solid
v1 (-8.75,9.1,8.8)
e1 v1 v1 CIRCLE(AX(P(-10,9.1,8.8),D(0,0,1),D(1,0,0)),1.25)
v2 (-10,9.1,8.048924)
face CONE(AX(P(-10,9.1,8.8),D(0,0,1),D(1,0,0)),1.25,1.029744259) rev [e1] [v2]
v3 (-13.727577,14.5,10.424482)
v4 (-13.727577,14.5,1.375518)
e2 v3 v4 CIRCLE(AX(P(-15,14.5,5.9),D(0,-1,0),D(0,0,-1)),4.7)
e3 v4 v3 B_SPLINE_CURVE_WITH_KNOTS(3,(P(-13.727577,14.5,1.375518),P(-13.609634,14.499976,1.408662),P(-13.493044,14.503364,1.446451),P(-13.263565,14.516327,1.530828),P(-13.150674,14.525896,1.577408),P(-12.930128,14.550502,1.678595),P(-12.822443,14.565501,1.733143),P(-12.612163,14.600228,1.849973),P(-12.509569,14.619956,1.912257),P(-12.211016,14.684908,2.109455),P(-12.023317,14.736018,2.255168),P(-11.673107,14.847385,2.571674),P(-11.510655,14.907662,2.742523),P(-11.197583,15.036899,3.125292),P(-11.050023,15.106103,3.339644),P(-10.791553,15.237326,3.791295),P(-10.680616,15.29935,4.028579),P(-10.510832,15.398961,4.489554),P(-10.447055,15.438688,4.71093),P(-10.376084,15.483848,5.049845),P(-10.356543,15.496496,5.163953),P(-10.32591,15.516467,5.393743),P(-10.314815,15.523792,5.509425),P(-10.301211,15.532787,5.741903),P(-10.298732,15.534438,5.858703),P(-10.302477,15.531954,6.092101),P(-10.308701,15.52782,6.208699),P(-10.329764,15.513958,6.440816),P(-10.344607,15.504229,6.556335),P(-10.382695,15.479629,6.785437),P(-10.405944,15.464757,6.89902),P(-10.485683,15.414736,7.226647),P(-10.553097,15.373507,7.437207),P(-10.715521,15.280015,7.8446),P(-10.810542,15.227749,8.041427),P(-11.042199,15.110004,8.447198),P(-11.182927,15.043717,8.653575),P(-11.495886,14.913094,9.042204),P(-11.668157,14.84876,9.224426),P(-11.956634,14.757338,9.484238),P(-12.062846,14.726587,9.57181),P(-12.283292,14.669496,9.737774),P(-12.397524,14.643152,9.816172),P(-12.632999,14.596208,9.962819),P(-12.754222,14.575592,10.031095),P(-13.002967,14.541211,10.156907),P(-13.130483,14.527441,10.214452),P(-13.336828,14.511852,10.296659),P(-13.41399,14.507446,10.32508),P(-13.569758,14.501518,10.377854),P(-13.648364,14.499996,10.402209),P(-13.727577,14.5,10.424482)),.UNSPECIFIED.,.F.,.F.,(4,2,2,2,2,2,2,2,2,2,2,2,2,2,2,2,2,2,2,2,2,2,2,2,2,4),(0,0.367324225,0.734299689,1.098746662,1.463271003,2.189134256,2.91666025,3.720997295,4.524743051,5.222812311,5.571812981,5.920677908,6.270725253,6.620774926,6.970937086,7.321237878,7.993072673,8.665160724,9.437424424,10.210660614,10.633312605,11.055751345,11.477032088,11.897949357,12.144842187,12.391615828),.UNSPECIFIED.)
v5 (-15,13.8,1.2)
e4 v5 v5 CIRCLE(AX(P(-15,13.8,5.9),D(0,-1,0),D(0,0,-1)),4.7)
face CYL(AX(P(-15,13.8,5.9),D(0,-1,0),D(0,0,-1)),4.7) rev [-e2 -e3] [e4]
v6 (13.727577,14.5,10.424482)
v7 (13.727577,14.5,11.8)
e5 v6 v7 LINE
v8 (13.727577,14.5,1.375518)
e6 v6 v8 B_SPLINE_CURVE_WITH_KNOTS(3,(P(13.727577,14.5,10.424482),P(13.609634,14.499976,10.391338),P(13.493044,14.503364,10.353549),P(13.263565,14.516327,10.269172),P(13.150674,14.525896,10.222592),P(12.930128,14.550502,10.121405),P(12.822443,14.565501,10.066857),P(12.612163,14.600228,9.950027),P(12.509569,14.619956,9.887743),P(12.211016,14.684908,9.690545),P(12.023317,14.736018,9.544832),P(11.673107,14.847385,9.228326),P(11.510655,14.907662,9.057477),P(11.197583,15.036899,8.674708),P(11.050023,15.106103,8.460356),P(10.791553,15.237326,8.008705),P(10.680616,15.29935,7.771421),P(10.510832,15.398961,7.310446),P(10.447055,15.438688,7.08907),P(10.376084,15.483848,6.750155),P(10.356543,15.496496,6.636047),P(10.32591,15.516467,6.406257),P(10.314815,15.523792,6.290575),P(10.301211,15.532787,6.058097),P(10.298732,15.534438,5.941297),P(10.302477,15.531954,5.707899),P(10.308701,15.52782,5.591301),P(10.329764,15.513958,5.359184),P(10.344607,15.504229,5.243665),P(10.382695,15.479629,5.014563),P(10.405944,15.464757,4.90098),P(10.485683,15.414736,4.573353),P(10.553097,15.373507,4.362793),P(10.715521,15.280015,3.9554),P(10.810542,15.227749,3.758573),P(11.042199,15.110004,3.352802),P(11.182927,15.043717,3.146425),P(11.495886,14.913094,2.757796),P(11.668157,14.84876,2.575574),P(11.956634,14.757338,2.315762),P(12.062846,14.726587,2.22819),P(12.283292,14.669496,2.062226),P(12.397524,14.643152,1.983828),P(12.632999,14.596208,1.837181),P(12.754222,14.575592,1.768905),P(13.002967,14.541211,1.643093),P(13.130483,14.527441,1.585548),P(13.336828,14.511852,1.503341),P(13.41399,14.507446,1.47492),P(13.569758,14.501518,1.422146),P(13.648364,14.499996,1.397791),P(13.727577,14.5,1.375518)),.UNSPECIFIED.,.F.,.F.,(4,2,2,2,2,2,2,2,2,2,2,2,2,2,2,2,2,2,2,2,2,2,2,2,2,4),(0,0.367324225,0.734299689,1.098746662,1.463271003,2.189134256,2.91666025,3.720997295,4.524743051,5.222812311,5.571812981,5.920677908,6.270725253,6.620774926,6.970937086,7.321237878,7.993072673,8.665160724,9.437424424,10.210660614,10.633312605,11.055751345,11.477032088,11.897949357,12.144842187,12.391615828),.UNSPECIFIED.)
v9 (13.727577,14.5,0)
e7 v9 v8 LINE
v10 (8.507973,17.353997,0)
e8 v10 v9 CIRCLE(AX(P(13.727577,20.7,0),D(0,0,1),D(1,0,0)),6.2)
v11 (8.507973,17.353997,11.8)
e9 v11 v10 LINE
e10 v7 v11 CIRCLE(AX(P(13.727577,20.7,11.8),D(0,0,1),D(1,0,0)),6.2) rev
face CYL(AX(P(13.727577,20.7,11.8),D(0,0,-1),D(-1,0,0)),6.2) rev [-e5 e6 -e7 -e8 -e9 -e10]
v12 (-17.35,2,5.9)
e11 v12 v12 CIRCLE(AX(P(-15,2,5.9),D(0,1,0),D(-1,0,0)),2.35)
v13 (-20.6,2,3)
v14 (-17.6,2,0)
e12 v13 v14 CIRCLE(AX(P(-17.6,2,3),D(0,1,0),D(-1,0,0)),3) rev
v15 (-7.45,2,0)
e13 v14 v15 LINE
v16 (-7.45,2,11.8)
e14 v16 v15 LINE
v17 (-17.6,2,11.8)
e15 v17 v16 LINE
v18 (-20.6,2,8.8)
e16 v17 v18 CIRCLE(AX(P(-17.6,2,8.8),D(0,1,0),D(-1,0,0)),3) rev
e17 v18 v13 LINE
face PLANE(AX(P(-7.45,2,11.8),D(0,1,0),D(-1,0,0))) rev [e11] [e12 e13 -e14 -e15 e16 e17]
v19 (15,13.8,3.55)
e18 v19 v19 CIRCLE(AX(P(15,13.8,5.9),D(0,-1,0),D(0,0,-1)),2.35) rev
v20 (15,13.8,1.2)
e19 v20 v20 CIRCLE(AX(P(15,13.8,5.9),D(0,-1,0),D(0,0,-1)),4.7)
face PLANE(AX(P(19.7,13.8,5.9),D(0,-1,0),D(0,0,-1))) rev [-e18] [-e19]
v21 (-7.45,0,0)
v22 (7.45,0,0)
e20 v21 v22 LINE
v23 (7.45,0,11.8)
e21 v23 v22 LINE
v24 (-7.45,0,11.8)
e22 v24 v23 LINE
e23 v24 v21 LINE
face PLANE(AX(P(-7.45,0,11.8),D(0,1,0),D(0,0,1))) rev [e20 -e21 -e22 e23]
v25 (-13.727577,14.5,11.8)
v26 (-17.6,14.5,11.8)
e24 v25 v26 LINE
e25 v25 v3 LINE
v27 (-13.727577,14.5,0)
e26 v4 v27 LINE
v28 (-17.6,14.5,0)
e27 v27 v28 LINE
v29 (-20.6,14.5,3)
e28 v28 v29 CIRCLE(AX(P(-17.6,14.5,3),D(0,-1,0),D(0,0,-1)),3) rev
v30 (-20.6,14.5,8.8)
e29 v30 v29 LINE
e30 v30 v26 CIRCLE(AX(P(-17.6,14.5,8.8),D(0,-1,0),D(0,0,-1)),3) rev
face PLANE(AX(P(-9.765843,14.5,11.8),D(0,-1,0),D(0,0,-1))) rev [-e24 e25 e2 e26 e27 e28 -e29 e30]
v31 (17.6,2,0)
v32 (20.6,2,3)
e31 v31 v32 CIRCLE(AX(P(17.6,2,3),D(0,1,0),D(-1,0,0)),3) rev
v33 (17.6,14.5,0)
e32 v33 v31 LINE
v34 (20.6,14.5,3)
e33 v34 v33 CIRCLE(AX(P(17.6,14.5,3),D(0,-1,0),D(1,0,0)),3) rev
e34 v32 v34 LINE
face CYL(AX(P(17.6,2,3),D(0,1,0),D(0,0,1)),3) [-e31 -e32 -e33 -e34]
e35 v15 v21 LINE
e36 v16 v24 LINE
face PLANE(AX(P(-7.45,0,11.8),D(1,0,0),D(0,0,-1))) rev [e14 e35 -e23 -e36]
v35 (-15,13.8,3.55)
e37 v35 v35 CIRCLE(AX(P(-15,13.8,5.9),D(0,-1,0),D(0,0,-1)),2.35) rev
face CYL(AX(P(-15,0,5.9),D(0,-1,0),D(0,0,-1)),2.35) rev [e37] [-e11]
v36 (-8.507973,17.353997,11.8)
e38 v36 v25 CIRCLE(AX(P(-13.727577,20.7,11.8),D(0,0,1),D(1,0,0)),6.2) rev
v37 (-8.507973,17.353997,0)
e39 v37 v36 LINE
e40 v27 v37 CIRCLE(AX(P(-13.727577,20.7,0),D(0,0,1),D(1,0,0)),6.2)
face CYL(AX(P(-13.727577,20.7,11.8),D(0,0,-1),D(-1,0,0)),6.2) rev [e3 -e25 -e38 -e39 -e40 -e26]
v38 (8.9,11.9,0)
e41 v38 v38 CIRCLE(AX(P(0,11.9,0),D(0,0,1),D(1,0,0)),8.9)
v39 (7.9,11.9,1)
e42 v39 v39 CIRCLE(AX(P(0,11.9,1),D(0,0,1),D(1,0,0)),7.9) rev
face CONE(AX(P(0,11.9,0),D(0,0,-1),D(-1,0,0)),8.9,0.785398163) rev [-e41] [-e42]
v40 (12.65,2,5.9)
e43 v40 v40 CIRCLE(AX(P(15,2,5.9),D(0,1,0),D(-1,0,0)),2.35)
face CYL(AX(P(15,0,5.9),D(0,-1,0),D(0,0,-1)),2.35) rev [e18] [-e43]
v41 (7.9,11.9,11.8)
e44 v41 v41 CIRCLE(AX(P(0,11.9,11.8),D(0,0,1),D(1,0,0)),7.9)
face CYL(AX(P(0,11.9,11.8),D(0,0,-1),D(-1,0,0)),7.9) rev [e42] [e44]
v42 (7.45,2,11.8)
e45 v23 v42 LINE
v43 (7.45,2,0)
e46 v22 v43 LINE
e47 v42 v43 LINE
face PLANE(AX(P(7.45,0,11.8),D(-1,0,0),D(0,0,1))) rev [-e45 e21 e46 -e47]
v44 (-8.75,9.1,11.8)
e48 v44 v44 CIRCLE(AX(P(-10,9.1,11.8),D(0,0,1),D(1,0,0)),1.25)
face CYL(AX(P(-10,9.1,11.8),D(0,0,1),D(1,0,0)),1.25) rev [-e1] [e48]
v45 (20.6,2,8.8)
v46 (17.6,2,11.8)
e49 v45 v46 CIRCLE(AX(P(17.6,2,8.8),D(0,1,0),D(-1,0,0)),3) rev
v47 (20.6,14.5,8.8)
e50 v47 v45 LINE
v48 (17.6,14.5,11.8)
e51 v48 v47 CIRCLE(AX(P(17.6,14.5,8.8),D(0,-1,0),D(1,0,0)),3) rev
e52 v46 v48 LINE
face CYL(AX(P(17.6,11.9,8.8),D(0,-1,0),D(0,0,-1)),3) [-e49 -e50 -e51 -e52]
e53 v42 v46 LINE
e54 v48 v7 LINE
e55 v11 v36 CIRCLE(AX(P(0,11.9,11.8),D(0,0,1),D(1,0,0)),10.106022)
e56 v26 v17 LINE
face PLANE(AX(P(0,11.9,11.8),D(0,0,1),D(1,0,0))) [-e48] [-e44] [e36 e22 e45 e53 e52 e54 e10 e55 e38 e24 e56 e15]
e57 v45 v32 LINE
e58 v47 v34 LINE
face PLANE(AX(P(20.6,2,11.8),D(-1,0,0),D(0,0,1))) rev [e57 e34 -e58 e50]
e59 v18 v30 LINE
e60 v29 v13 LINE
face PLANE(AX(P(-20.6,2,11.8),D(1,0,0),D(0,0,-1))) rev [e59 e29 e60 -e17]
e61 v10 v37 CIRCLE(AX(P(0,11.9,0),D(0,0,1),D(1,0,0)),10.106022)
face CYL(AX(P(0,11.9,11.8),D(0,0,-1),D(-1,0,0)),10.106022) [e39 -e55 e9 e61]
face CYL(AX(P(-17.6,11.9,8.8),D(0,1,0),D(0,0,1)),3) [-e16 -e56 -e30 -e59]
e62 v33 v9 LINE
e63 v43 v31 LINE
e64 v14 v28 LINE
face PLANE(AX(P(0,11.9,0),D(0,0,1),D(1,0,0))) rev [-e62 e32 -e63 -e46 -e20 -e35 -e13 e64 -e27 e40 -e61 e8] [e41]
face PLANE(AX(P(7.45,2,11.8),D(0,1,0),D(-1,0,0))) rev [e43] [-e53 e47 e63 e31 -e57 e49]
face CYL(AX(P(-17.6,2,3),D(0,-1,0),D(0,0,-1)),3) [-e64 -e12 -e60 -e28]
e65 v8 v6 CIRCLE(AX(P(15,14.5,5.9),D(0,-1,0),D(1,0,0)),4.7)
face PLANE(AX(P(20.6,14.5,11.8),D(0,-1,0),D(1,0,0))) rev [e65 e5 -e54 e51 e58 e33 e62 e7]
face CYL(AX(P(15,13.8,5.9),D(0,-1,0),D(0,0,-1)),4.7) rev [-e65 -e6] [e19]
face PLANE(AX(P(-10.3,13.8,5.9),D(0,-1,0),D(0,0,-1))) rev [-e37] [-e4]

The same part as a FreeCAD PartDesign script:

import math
import FreeCAD as App
import Part
import Sketcher


def edges_at(feature, points):
    """Names of the edges that pass closest to the given points."""
    edges = feature.Shape.Edges
    near = lambda p: min(range(len(edges)), key=lambda i: edges[i].distToShape(Part.Vertex(*p))[0])
    return sorted({f"Edge{near(p) + 1}" for p in points})


def add_polygon(sketch, points):
    """Adds a closed chain of lines whose ends are joined by coincident constraints."""
    first, n = sketch.GeometryCount, len(points)
    for a, b in zip(points, points[1:] + points[:1]):
        sketch.addGeometry(Part.LineSegment(App.Vector(*a, 0), App.Vector(*b, 0)), False)
    for i in range(n):
        sketch.addConstraint(Sketcher.Constraint("Coincident", first + i, 2, first + (i + 1) % n, 1))

doc = App.newDocument("Part")
body = doc.addObject("PartDesign::Body", "Body")

sketch1 = body.newObject("Sketcher::SketchObject", "Sketch")
sketch1.AttachmentSupport = (doc.getObject("XY_Plane"), [""])
sketch1.MapMode = "FlatFace"
sketch1.addGeometry([
    Part.LineSegment(App.Vector(-7.5, 0, 0), App.Vector(7.5, 0, 0)),
    Part.LineSegment(App.Vector(7.5, 0, 0), App.Vector(7.5, 2, 0)),
    Part.LineSegment(App.Vector(7.5, 2, 0), App.Vector(20.6, 2, 0)),
    Part.LineSegment(App.Vector(20.6, 2, 0), App.Vector(20.6, 14.5, 0)),
    Part.LineSegment(App.Vector(20.6, 14.5, 0), App.Vector(9.8, 14.5, 0)),
    Part.ArcOfCircle(Part.Circle(App.Vector(0, 11.9, 0), App.Vector(0, 0, 1), 10.1), math.radians(15), math.radians(165)),
    Part.LineSegment(App.Vector(-9.8, 14.5, 0), App.Vector(-20.6, 14.5, 0)),
    Part.LineSegment(App.Vector(-20.6, 14.5, 0), App.Vector(-20.6, 2, 0)),
    Part.LineSegment(App.Vector(-20.6, 2, 0), App.Vector(-7.5, 2, 0)),
    Part.LineSegment(App.Vector(-7.5, 2, 0), App.Vector(-7.5, 0, 0)),
    Part.Circle(App.Vector(0, 11.9, 0), App.Vector(0, 0, 1), 7.9),
], False)
sketch1.addConstraint([
    Sketcher.Constraint("Coincident", 0, 2, 1, 1),
    Sketcher.Constraint("Coincident", 1, 2, 2, 1),
    Sketcher.Constraint("Coincident", 2, 2, 3, 1),
    Sketcher.Constraint("Coincident", 3, 2, 4, 1),
    Sketcher.Constraint("Coincident", 4, 2, 5, 1),
    Sketcher.Constraint("Coincident", 5, 2, 6, 1),
    Sketcher.Constraint("Coincident", 6, 2, 7, 1),
    Sketcher.Constraint("Coincident", 7, 2, 8, 1),
    Sketcher.Constraint("Coincident", 8, 2, 9, 1),
    Sketcher.Constraint("Coincident", 9, 2, 0, 1),
    Sketcher.Constraint("Horizontal", 0),
    Sketcher.Constraint("Vertical", 1),
    Sketcher.Constraint("Horizontal", 2),
    Sketcher.Constraint("Vertical", 3),
    Sketcher.Constraint("Horizontal", 4),
    Sketcher.Constraint("Horizontal", 6),
    Sketcher.Constraint("Vertical", 7),
    Sketcher.Constraint("Horizontal", 8),
    Sketcher.Constraint("Vertical", 9),
    Sketcher.Constraint("Coincident", 10, 3, 5, 3),
    Sketcher.Constraint("Symmetric", 0, 2, 9, 2, -1, 1),
    Sketcher.Constraint("Symmetric", 4, 2, 5, 2, -2),
    Sketcher.Constraint("Symmetric", 2, 2, 7, 2, -2),
    Sketcher.Constraint("Diameter", 10, 15.8),
    Sketcher.Constraint("DistanceY", 1, 1, 1, 2, 2.0),
    Sketcher.Constraint("DistanceX", 0, 1, 0, 2, 14.9),
    Sketcher.Constraint("DistanceY", 3, 1, 3, 2, 12.5),
    Sketcher.Constraint("DistanceX", 2, 1, 2, 2, 13.15),
    Sketcher.Constraint("DistanceY", -1, 1, 5, 3, 11.9),
    Sketcher.Constraint("Radius", 5, 10.106022),
])
pad1 = body.newObject("PartDesign::Pad", "Pad")
pad1.Profile = sketch1
pad1.Length = 11.8
doc.recompute()

fillet = body.newObject("PartDesign::Fillet", "Fillet")
fillet.Base = (pad1, edges_at(pad1, [(-9.766, 14.5, 5.9), (9.766, 14.5, 5.9)]))
fillet.Radius = 6.2
doc.recompute()

fillet2 = body.newObject("PartDesign::Fillet", "Fillet001")
fillet2.Base = (fillet, edges_at(fillet, [
    (20.6, 8.25, 0),
    (20.6, 8.25, 11.8),
    (-20.6, 8.25, 11.8),
    (-20.6, 8.25, 0),
]))
fillet2.Radius = 3
doc.recompute()

chamfer = body.newObject("PartDesign::Chamfer", "Chamfer")
chamfer.Base = (fillet2, edges_at(fillet2, [(-7.9, 11.9, 0)]))
chamfer.Size = 1

sketch2 = body.newObject("Sketcher::SketchObject", "Sketch001")
sketch2.AttachmentSupport = (doc.getObject("XZ_Plane"), [""])
sketch2.MapMode = "FlatFace"
sketch2.addGeometry([
    Part.Circle(App.Vector(15, 5.9, 0), App.Vector(0, 0, 1), 2.4),
    Part.Circle(App.Vector(-15, 5.9, 0), App.Vector(0, 0, 1), 2.4),
], False)
sketch2.addConstraint([
    Sketcher.Constraint("Equal", 0, 1),
    Sketcher.Constraint("Symmetric", 0, 3, 1, 3, -2),
    Sketcher.Constraint("Diameter", 0, 4.7),
    Sketcher.Constraint("DistanceX", -1, 1, 0, 3, 15.0),
    Sketcher.Constraint("DistanceY", -1, 1, 0, 3, 5.9),
])
doc.recompute()
hole = body.newObject("PartDesign::Hole", "Hole")
hole.Profile = sketch2
hole.ThreadType = "None"
hole.Diameter = 4.7
hole.DepthType = "ThroughAll"

sketch3 = body.newObject("Sketcher::SketchObject", "Sketch002")
sketch3.AttachmentSupport = (doc.getObject("YZ_Plane"), [""])
sketch3.MapMode = "FlatFace"
sketch3.AttachmentOffset = App.Placement(App.Vector(0, 0, -15), App.Rotation())
add_polygon(sketch3, [(22, 5.9), (13.8, 5.9), (13.8, 1.2), (22, 1.2)])
sketch3.addGeometry(Part.LineSegment(App.Vector(13.8, 5.9, 0), App.Vector(22, 5.9, 0)), True)
sketch3.addConstraint([
    Sketcher.Constraint("Horizontal", 0),
    Sketcher.Constraint("Vertical", 1),
    Sketcher.Constraint("Horizontal", 2),
    Sketcher.Constraint("Vertical", 3),
    Sketcher.Constraint("Horizontal", 4),
    Sketcher.Constraint("Coincident", 4, 1, 0, 2),
    Sketcher.Constraint("Vertical", 2, 2, 4, 2),
    Sketcher.Constraint("DistanceY", 1, 2, 1, 1, 4.7),
    Sketcher.Constraint("DistanceX", -1, 1, 0, 2, 13.8),
    Sketcher.Constraint("DistanceY", -1, 1, 0, 2, 5.9),
    Sketcher.Constraint("DistanceX", 0, 2, 0, 1, 8.206022),
])
groove = body.newObject("PartDesign::Groove", "Groove")
groove.Profile = sketch3
groove.ReferenceAxis = (sketch3, ["Axis0"])
groove.Angle = 360
doc.recompute()

linearpattern = body.newObject("PartDesign::LinearPattern", "LinearPattern")
linearpattern.Originals = [groove]
linearpattern.Direction = (doc.getObject("X_Axis"), [""])
linearpattern.Mode = "offset"
linearpattern.Offset = 30
linearpattern.Occurrences = 2
body.Tip = linearpattern

sketch4 = body.newObject("Sketcher::SketchObject", "Sketch003")
sketch4.AttachmentSupport = (doc.getObject("XY_Plane"), [""])
sketch4.MapMode = "FlatFace"
sketch4.AttachmentOffset = App.Placement(App.Vector(0, 0, 11.8), App.Rotation())
sketch4.addGeometry(Part.Circle(App.Vector(-10, 9.1, 0), App.Vector(0, 0, 1), 1.2), False)
sketch4.addConstraint([
    Sketcher.Constraint("Diameter", 0, 2.5),
    Sketcher.Constraint("DistanceX", 0, 3, -1, 1, 10.0),
    Sketcher.Constraint("DistanceY", -1, 1, 0, 3, 9.1),
])
doc.recompute()
hole2 = body.newObject("PartDesign::Hole", "Hole001")
hole2.Profile = sketch4
hole2.ThreadType = "None"
hole2.Diameter = 2.5
hole2.DepthType = "Dimension"
hole2.Depth = 3
hole2.DrillPoint = "Angled"
hole2.DrillPointAngle = 118

doc.recompute()
